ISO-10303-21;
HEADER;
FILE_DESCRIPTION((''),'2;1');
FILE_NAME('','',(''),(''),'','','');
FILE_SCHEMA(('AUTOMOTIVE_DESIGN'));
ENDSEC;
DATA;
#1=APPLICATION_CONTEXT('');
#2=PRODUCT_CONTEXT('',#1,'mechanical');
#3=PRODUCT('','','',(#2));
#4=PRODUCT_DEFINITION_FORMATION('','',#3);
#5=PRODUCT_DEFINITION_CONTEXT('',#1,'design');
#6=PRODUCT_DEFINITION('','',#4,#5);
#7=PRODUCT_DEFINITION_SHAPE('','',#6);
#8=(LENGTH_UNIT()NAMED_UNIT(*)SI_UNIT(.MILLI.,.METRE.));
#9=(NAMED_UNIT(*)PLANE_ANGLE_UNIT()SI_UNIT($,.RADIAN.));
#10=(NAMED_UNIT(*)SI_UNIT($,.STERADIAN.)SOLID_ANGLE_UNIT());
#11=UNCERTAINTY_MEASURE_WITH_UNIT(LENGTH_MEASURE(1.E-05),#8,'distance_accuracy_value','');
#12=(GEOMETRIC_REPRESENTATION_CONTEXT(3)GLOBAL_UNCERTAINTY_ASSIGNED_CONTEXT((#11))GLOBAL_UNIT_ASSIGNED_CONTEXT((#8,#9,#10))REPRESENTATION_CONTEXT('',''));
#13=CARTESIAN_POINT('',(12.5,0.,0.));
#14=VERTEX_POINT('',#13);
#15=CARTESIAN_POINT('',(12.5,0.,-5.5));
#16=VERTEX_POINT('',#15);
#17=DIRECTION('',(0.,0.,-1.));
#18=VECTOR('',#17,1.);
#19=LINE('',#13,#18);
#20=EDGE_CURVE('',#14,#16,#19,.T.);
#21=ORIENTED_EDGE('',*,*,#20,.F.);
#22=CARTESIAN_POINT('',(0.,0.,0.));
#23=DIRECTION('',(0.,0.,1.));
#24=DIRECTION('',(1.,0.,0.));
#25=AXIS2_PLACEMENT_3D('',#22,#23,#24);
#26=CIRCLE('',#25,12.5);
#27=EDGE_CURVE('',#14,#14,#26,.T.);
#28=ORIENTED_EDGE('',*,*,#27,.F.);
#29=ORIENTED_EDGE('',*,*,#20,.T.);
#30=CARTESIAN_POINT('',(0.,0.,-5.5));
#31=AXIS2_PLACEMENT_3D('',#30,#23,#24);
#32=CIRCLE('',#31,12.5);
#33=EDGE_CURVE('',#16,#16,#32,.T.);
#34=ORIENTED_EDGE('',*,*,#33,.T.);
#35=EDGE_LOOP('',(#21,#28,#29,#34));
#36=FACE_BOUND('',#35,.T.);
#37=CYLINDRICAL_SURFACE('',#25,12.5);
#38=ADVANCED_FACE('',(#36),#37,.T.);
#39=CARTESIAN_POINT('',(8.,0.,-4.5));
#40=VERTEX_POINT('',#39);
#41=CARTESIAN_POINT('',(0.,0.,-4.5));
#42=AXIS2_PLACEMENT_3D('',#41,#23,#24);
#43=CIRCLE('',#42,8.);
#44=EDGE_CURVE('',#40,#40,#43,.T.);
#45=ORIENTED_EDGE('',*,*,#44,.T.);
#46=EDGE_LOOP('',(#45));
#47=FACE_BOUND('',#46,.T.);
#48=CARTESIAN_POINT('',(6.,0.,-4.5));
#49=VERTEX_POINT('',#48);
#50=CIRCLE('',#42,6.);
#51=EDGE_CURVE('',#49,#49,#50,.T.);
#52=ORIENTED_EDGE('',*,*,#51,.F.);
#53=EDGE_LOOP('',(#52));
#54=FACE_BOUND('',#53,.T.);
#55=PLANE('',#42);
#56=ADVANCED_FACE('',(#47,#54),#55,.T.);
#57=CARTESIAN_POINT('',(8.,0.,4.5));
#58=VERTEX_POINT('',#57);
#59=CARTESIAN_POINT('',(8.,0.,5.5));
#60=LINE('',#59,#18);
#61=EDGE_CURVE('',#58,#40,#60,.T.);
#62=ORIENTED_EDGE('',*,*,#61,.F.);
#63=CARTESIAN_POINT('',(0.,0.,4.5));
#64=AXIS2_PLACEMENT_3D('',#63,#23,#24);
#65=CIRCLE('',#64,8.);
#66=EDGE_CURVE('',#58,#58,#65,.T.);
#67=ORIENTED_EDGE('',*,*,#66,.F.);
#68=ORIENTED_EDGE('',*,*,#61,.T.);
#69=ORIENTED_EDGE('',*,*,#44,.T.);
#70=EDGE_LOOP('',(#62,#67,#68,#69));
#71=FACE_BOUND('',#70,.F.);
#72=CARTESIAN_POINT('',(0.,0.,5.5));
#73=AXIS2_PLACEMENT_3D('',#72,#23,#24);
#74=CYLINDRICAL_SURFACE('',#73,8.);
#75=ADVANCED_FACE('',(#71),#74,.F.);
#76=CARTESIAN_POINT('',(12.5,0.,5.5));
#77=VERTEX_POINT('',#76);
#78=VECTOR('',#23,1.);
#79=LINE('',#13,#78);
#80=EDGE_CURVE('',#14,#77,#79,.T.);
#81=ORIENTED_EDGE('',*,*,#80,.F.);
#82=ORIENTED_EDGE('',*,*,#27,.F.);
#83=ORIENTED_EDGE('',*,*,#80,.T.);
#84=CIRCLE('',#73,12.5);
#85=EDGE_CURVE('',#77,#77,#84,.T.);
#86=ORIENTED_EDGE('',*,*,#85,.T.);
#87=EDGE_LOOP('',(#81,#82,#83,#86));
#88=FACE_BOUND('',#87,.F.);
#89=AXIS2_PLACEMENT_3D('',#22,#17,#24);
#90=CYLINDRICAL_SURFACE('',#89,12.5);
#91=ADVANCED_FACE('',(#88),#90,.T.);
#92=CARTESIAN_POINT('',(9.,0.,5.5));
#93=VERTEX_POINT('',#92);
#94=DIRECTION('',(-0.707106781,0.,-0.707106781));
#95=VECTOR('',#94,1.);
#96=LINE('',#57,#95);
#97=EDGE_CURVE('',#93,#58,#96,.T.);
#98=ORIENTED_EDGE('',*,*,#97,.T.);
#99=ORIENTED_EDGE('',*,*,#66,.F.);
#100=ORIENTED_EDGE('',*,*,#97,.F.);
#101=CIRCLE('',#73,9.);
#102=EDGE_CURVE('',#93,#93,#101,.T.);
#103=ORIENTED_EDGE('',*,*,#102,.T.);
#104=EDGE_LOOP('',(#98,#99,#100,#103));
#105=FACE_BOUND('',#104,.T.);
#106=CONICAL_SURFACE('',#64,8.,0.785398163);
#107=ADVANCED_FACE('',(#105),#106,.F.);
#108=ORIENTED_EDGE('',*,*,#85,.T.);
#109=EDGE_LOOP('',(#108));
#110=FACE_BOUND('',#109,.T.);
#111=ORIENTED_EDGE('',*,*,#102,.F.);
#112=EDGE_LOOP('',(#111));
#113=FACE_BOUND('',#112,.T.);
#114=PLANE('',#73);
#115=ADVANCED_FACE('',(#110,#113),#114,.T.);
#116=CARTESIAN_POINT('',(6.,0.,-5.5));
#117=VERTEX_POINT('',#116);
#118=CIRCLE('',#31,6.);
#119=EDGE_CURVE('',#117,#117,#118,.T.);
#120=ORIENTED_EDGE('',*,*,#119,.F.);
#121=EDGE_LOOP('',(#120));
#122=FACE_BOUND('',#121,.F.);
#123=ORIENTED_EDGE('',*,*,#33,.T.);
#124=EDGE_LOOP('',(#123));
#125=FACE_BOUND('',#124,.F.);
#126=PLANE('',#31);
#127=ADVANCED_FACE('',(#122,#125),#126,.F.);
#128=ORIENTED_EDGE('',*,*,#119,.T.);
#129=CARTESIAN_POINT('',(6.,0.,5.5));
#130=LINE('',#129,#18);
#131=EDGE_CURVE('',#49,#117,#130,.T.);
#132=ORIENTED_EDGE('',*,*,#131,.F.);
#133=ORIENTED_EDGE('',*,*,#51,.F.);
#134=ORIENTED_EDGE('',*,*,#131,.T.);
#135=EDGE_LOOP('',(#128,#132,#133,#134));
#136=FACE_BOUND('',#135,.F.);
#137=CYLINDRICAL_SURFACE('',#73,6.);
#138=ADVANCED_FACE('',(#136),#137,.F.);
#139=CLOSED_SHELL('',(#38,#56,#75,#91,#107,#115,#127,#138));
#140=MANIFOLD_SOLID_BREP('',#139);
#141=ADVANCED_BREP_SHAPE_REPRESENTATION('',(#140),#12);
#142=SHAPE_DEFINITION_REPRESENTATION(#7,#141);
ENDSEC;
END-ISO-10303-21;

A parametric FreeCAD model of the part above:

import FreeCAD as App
import Part
import Sketcher
from FreeCAD import Vector
Q = App.Units.Quantity


def edges_at(feature, points):
    """Names of the edges that pass closest to the given points."""
    edges = feature.Shape.Edges
    near = lambda p: min(range(len(edges)), key=lambda i: edges[i].distToShape(Part.Vertex(*p))[0])
    return sorted({f"Edge{near(p) + 1}" for p in points})

doc = App.newDocument("Part")
body = doc.addObject("PartDesign::Body", "Body")

# Sketch on XY plane
sketch1 = body.newObject("Sketcher::SketchObject", "Sketch")
sketch1.AttachmentSupport = (doc.getObject("XY_Plane"), [""])
sketch1.MapMode = "FlatFace"
sketch1.addGeometry(Part.Circle(Vector(0, 0, 0), Vector(0, 0, 1), 12), False)
sketch1.addConstraint([
    Sketcher.Constraint("Coincident", 0, 3, -1, 1),
    Sketcher.Constraint("Diameter", 0, Q("25 mm")),
])
pad1 = body.newObject("PartDesign::Pad", "Pad")
pad1.Profile = sketch1
pad1.Length = 11
pad1.Midplane = True

# Sketch on XY plane
sketch2 = body.newObject("Sketcher::SketchObject", "Sketch001")
sketch2.AttachmentSupport = (doc.getObject("XY_Plane"), [""])
sketch2.MapMode = "FlatFace"
sketch2.AttachmentOffset = App.Placement(Vector(0, 0, 5.5), App.Rotation())
sketch2.addGeometry(Part.Circle(Vector(0, 0, 0), Vector(0, 0, 1), 6), False)
sketch2.addConstraint([
    Sketcher.Constraint("Coincident", 0, 3, -1, 1),
    Sketcher.Constraint("Diameter", 0, Q("12 mm")),
])
pocket1 = body.newObject("PartDesign::Pocket", "Pocket")
pocket1.Profile = sketch2
pocket1.Type = "ThroughAll"

# Sketch on XY plane
sketch3 = body.newObject("Sketcher::SketchObject", "Sketch002")
sketch3.AttachmentSupport = (doc.getObject("XY_Plane"), [""])
sketch3.MapMode = "FlatFace"
sketch3.AttachmentOffset = App.Placement(Vector(0, 0, 5.5), App.Rotation())
sketch3.addGeometry([
    Part.Circle(Vector(0, 0, 0), Vector(0, 0, 1), 8),
    Part.Circle(Vector(0, 0, 0), Vector(0, 0, 1), 6),
], False)
sketch3.addConstraint([
    Sketcher.Constraint("Coincident", 0, 3, -1, 1),
    Sketcher.Constraint("Coincident", 1, 3, -1, 1),
    Sketcher.Constraint("Diameter", 0, Q("16 mm")),
    Sketcher.Constraint("Diameter", 1, Q("12 mm")),
])
pocket2 = body.newObject("PartDesign::Pocket", "Pocket001")
pocket2.Profile = sketch3
pocket2.Length = 10
doc.recompute()

chamfer = body.newObject("PartDesign::Chamfer", "Chamfer")
chamfer.Base = (pocket2, edges_at(pocket2, [(-8, 0, 5.5)]))
chamfer.Size = 1

doc.recompute()
